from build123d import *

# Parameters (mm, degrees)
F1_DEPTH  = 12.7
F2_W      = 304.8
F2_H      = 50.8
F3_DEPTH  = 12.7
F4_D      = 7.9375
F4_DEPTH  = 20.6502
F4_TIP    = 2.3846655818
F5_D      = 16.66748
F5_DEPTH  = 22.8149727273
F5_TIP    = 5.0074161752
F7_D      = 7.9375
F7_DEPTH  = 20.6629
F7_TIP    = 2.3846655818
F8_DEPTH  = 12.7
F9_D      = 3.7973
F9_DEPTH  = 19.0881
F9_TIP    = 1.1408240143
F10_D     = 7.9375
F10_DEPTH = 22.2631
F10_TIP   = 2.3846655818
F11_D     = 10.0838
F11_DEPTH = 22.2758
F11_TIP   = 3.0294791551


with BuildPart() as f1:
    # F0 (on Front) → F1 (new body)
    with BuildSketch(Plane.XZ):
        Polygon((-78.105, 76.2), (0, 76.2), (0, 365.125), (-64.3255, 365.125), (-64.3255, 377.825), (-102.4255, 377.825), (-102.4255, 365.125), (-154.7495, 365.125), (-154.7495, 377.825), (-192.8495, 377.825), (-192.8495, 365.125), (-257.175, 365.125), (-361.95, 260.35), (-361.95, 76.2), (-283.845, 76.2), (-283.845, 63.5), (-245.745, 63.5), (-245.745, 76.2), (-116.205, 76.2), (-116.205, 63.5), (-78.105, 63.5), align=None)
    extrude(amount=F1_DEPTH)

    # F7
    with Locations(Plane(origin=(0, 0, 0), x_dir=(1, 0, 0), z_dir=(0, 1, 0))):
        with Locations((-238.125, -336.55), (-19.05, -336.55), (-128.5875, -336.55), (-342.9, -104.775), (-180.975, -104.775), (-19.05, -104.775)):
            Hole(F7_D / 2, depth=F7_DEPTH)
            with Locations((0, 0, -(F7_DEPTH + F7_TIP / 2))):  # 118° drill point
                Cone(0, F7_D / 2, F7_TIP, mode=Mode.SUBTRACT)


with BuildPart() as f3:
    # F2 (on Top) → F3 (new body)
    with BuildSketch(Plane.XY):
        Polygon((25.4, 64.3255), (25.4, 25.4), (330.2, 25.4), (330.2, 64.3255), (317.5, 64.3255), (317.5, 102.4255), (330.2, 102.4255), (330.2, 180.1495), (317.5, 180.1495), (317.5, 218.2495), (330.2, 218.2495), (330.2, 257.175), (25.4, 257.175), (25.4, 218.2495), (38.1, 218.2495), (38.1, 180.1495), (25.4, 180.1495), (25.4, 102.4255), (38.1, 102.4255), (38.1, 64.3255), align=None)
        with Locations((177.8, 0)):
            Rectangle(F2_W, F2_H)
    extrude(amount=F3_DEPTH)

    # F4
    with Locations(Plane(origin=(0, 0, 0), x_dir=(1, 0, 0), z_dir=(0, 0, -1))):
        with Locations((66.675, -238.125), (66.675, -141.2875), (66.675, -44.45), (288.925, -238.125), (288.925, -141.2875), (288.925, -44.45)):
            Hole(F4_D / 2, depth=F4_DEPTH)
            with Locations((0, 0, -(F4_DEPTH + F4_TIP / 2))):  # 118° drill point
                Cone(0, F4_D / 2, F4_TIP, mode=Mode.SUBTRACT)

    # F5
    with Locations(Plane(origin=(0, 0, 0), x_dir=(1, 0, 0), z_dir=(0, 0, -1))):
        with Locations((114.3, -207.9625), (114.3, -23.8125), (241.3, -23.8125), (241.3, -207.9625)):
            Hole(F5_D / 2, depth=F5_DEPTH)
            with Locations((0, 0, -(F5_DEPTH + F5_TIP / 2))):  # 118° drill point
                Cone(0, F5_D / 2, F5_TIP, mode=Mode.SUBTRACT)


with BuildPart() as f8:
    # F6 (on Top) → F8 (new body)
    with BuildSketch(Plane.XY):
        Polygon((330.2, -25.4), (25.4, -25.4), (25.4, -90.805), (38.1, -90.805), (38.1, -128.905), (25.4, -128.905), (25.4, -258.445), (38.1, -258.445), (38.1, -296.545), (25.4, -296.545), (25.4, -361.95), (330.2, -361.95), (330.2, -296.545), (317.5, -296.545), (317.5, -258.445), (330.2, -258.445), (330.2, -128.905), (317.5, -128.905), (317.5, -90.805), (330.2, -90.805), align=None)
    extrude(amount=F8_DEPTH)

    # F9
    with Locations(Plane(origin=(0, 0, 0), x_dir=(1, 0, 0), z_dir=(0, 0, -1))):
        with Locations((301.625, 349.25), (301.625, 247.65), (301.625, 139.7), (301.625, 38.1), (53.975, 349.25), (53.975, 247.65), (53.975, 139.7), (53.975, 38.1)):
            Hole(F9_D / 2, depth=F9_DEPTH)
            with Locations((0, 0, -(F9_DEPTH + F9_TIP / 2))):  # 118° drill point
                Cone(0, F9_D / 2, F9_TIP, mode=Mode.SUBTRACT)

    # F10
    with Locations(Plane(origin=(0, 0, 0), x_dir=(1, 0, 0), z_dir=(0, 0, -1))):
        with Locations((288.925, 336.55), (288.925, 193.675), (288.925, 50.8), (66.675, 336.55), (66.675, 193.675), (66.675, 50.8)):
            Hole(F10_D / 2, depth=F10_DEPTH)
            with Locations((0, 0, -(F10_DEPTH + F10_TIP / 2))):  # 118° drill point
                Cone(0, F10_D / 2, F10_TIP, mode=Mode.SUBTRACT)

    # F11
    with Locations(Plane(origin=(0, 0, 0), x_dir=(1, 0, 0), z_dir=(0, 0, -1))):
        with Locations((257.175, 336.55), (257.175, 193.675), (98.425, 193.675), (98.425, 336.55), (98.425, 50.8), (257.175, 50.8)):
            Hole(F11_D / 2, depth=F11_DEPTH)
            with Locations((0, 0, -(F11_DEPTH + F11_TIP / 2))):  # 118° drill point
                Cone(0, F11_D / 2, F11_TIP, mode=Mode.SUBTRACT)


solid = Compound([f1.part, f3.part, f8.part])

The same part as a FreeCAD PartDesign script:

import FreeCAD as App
import Part
import Sketcher
from FreeCAD import Vector
Q = App.Units.Quantity


def add_polygon(sketch, points):
    """Adds a closed chain of lines whose ends are joined by coincident constraints."""
    first, n = sketch.GeometryCount, len(points)
    for a, b in zip(points, points[1:] + points[:1]):
        sketch.addGeometry(Part.LineSegment(App.Vector(*a, 0), App.Vector(*b, 0)), False)
    for i in range(n):
        sketch.addConstraint(Sketcher.Constraint("Coincident", first + i, 2, first + (i + 1) % n, 1))

doc = App.newDocument("Part")
params = doc.addObject("Spreadsheet::Sheet", "Params")
for row, (alias, value) in enumerate([
    ("sketch1_width", "1.5 in"),
    ("sketch1_width2", "5.1 in"),
    ("sketch1_height", "0.5 in"),
    ("sketch1_width3", "2.06 in"),
    ("sketch1_height2", "7.25 in"),
    ("pad1_length", "0.5 in"),
    ("sketch2_diameter", "0.3125 in"),
    ("hole_diameter", "0.3125 in"),
    ("hole_depth", "0.8135 in"),
    ("sketch3_width", "12 in"),
    ("sketch3_width2", "0.5 in"),
    ("sketch3_height", "1.5 in"),
    ("sketch3_height2", "3.06 in"),
    ("pad2_length", "0.5 in"),
    ("sketch4_diameter", "0.3125 in"),
    ("hole2_diameter", "0.3125 in"),
    ("hole2_depth", "0.813 in"),
    ("hole3_diameter", "0.6562 in"),
    ("hole3_depth", "22.814973 mm"),
    ("sketch6_width", "12 in"),
    ("sketch6_width2", "0.5 in"),
    ("sketch6_height", "1.5 in"),
    ("sketch6_height2", "5.1 in"),
    ("sketch6_height3", "2.575 in"),
    ("pad3_length", "0.5 in"),
    ("hole4_diameter", "0.1495 in"),
    ("hole4_depth", "0.7515 in"),
    ("sketch8_diameter", "0.3125 in"),
    ("hole5_diameter", "0.3125 in"),
    ("hole5_depth", "0.8765 in"),
    ("sketch9_diameter", "0.397 in"),
    ("hole6_diameter", "0.397 in"),
    ("hole6_depth", "0.877 in"),
], start=1):
    params.set(f"A{row}", alias)
    params.set(f"B{row}", "=" + value)
    params.setAlias(f"B{row}", alias)

body = doc.addObject("PartDesign::Body", "Body")

sketch1 = body.newObject("Sketcher::SketchObject", "Sketch")
sketch1.AttachmentSupport = (doc.getObject("XZ_Plane"), [""])
sketch1.MapMode = "FlatFace"
add_polygon(sketch1, [(-78, 76), (0, 76), (0, 365), (-64, 365), (-64, 378), (-102, 378), (-102, 365), (-155, 365), (-155, 378), (-193, 378), (-193, 365), (-257, 365), (-362, 260), (-362, 76), (-284, 76), (-284, 64), (-246, 64), (-246, 76), (-116, 76), (-116, 64), (-78, 64)])
sketch1.addConstraint(Sketcher.Constraint("Horizontal", 0))
sketch1.addConstraint(Sketcher.Constraint("Vertical", 1))
sketch1.addConstraint(Sketcher.Constraint("Horizontal", 2))
sketch1.addConstraint(Sketcher.Constraint("Vertical", 3))
sketch1.addConstraint(Sketcher.Constraint("Horizontal", 4))
sketch1.addConstraint(Sketcher.Constraint("Vertical", 5))
sketch1.addConstraint(Sketcher.Constraint("Horizontal", 6))
sketch1.addConstraint(Sketcher.Constraint("Vertical", 7))
sketch1.addConstraint(Sketcher.Constraint("Horizontal", 8))
sketch1.addConstraint(Sketcher.Constraint("Vertical", 9))
sketch1.addConstraint(Sketcher.Constraint("Horizontal", 10))
sketch1.addConstraint(Sketcher.Constraint("Vertical", 12))
sketch1.addConstraint(Sketcher.Constraint("Horizontal", 13))
sketch1.addConstraint(Sketcher.Constraint("Vertical", 14))
sketch1.addConstraint(Sketcher.Constraint("Horizontal", 15))
sketch1.addConstraint(Sketcher.Constraint("Vertical", 16))
sketch1.addConstraint(Sketcher.Constraint("Horizontal", 17))
sketch1.addConstraint(Sketcher.Constraint("Vertical", 18))
sketch1.addConstraint(Sketcher.Constraint("Horizontal", 19))
sketch1.addConstraint(Sketcher.Constraint("Vertical", 20))
sketch1.addConstraint(Sketcher.Constraint("PointOnObject", 0, 2, -2))
sketch1.addConstraint(Sketcher.Constraint("Horizontal", 2, 2, 5, 2))
sketch1.addConstraint(Sketcher.Constraint("Horizontal", 4, 2, 7, 2))
sketch1.addConstraint(Sketcher.Constraint("Horizontal", 6, 2, 9, 2))
sketch1.addConstraint(Sketcher.Constraint("Horizontal", 0, 2, 12, 2))
sketch1.addConstraint(Sketcher.Constraint("Horizontal", 13, 2, 16, 2))
sketch1.addConstraint(Sketcher.Constraint("Horizontal", 15, 2, 18, 2))
sketch1.addConstraint(Sketcher.Constraint("Equal", 4, 8))
sketch1.addConstraint(Sketcher.Constraint("Equal", 2, 10))
sketch1.addConstraint(Sketcher.Constraint("Equal", 0, 13))
sketch1.addConstraint(Sketcher.Constraint("Equal", 8, 15))
sketch1.addConstraint(Sketcher.Constraint("Equal", 15, 19))
sketch1.addConstraint(Sketcher.Constraint("Equal", 9, 14))
sketch1.addConstraint(Sketcher.Constraint("DistanceX", 4, 2, 4, 1, Q("1.5 in")))
sketch1.addConstraint(Sketcher.Constraint("DistanceX", 17, 1, 17, 2, Q("5.1 in")))
sketch1.addConstraint(Sketcher.Constraint("DistanceY", 3, 1, 3, 2, Q("0.5 in")))
sketch1.addConstraint(Sketcher.Constraint("DistanceY", -1, 1, 0, 2, Q("3 in")))
sketch1.addConstraint(Sketcher.Constraint("Angle", 11, Q("-135 deg")))
sketch1.addConstraint(Sketcher.Constraint("DistanceX", 6, 2, 6, 1, Q("2.06 in")))
sketch1.addConstraint(Sketcher.Constraint("DistanceY", 12, 2, 12, 1, Q("7.25 in")))
sketch1.addConstraint(Sketcher.Constraint("DistanceX", 0, 1, 0, 2, Q("3.075 in")))
sketch1.addConstraint(Sketcher.Constraint("DistanceY", 1, 1, 1, 2, Q("11.375 in")))
sketch1.setExpression("Constraints[54]", "Params.sketch1_width")
sketch1.setExpression("Constraints[55]", "Params.sketch1_width2")
sketch1.setExpression("Constraints[56]", "Params.sketch1_height")
sketch1.setExpression("Constraints[59]", "Params.sketch1_width3")
sketch1.setExpression("Constraints[60]", "Params.sketch1_height2")
pad1 = body.newObject("PartDesign::Pad", "Pad")
pad1.Profile = sketch1
pad1.setExpression("Length", "Params.pad1_length")

sketch2 = body.newObject("Sketcher::SketchObject", "Sketch001")
sketch2.AttachmentSupport = (doc.getObject("XZ_Plane"), [""])
sketch2.MapMode = "FlatFace"
sketch2.addGeometry(Part.Circle(Vector(-238.1, 336.6, 0), Vector(0, 0, 1), 4), False)
sketch2.addGeometry(Part.Circle(Vector(-19.1, 336.6, 0), Vector(0, 0, 1), 4), False)
sketch2.addGeometry(Part.Circle(Vector(-128.6, 336.6, 0), Vector(0, 0, 1), 4), False)
sketch2.addGeometry(Part.Circle(Vector(-342.9, 104.8, 0), Vector(0, 0, 1), 4), False)
sketch2.addGeometry(Part.Circle(Vector(-181, 104.8, 0), Vector(0, 0, 1), 4), False)
sketch2.addGeometry(Part.Circle(Vector(-19.1, 104.8, 0), Vector(0, 0, 1), 4), False)
sketch2.addConstraint(Sketcher.Constraint("Equal", 0, 1))
sketch2.addConstraint(Sketcher.Constraint("Equal", 1, 2))
sketch2.addConstraint(Sketcher.Constraint("Equal", 2, 3))
sketch2.addConstraint(Sketcher.Constraint("Equal", 3, 4))
sketch2.addConstraint(Sketcher.Constraint("Equal", 4, 5))
sketch2.addConstraint(Sketcher.Constraint("Horizontal", 0, 3, 1, 3))
sketch2.addConstraint(Sketcher.Constraint("Horizontal", 1, 3, 2, 3))
sketch2.addConstraint(Sketcher.Constraint("Horizontal", 3, 3, 4, 3))
sketch2.addConstraint(Sketcher.Constraint("Horizontal", 4, 3, 5, 3))
sketch2.addConstraint(Sketcher.Constraint("Vertical", 1, 3, 5, 3))
sketch2.addConstraint(Sketcher.Constraint("Diameter", 0, Q("0.3125 in")))
sketch2.addConstraint(Sketcher.Constraint("DistanceX", 3, 3, -1, 1, Q("13.5 in")))
sketch2.addConstraint(Sketcher.Constraint("DistanceY", -1, 1, 0, 3, Q("13.25 in")))
sketch2.addConstraint(Sketcher.Constraint("DistanceX", 1, 3, -1, 1, Q("0.75 in")))
sketch2.addConstraint(Sketcher.Constraint("DistanceX", 0, 3, 4, 3, Q("2.25 in")))
sketch2.addConstraint(Sketcher.Constraint("DistanceX", 0, 3, -1, 1, Q("9.375 in")))
sketch2.addConstraint(Sketcher.Constraint("DistanceX", 2, 3, -1, 1, Q("5.0625 in")))
sketch2.addConstraint(Sketcher.Constraint("DistanceY", -1, 1, 3, 3, Q("4.125 in")))
sketch2.setExpression("Constraints[10]", "Params.sketch2_diameter")
doc.recompute()
hole = body.newObject("PartDesign::Hole", "Hole")
hole.Profile = sketch2
hole.ThreadType = "None"
hole.setExpression("Diameter", "Params.hole_diameter")
hole.DepthType = "Dimension"
hole.setExpression("Depth", "Params.hole_depth")
hole.DrillPoint = "Angled"
hole.DrillPointAngle = 118
hole.Reversed = True
body2 = doc.addObject("PartDesign::Body", "Body001")

sketch3 = body2.newObject("Sketcher::SketchObject", "Sketch002")
sketch3.AttachmentSupport = (doc.getObject("XY_Plane001"), [""])
sketch3.MapMode = "FlatFace"
add_polygon(sketch3, [(25, 64), (25, -25), (330, -25), (330, 64), (318, 64), (318, 102), (330, 102), (330, 180), (318, 180), (318, 218), (330, 218), (330, 257), (25, 257), (25, 218), (38, 218), (38, 180), (25, 180), (25, 102), (38, 102), (38, 64)])
sketch3.addConstraint(Sketcher.Constraint("Vertical", 0))
sketch3.addConstraint(Sketcher.Constraint("Horizontal", 1))
sketch3.addConstraint(Sketcher.Constraint("Vertical", 2))
sketch3.addConstraint(Sketcher.Constraint("Horizontal", 3))
sketch3.addConstraint(Sketcher.Constraint("Vertical", 4))
sketch3.addConstraint(Sketcher.Constraint("Horizontal", 5))
sketch3.addConstraint(Sketcher.Constraint("Vertical", 6))
sketch3.addConstraint(Sketcher.Constraint("Horizontal", 7))
sketch3.addConstraint(Sketcher.Constraint("Vertical", 8))
sketch3.addConstraint(Sketcher.Constraint("Horizontal", 9))
sketch3.addConstraint(Sketcher.Constraint("Vertical", 10))
sketch3.addConstraint(Sketcher.Constraint("Horizontal", 11))
sketch3.addConstraint(Sketcher.Constraint("Vertical", 12))
sketch3.addConstraint(Sketcher.Constraint("Horizontal", 13))
sketch3.addConstraint(Sketcher.Constraint("Vertical", 14))
sketch3.addConstraint(Sketcher.Constraint("Horizontal", 15))
sketch3.addConstraint(Sketcher.Constraint("Vertical", 16))
sketch3.addConstraint(Sketcher.Constraint("Horizontal", 17))
sketch3.addConstraint(Sketcher.Constraint("Vertical", 18))
sketch3.addConstraint(Sketcher.Constraint("Horizontal", 19))
sketch3.addConstraint(Sketcher.Constraint("Horizontal", 9, 2, 12, 2))
sketch3.addConstraint(Sketcher.Constraint("Horizontal", 7, 2, 14, 2))
sketch3.addConstraint(Sketcher.Constraint("Horizontal", 5, 2, 16, 2))
sketch3.addConstraint(Sketcher.Constraint("Horizontal", 3, 2, 18, 2))
sketch3.addConstraint(Sketcher.Constraint("Vertical", 2, 2, 5, 2))
sketch3.addConstraint(Sketcher.Constraint("Vertical", 4, 2, 7, 2))
sketch3.addConstraint(Sketcher.Constraint("Vertical", 6, 2, 9, 2))
sketch3.addConstraint(Sketcher.Constraint("Vertical", 0, 2, 11, 2))
sketch3.addConstraint(Sketcher.Constraint("Vertical", 12, 2, 15, 2))
sketch3.addConstraint(Sketcher.Constraint("Vertical", 14, 2, 17, 2))
sketch3.addConstraint(Sketcher.Constraint("Equal", 9, 13))
sketch3.addConstraint(Sketcher.Constraint("Equal", 4, 8))
sketch3.addConstraint(Sketcher.Constraint("DistanceX", 1, 1, 1, 2, Q("12 in")))
sketch3.addConstraint(Sketcher.Constraint("DistanceX", 3, 2, 3, 1, Q("0.5 in")))
sketch3.addConstraint(Sketcher.Constraint("DistanceY", 4, 1, 4, 2, Q("1.5 in")))
sketch3.addConstraint(Sketcher.Constraint("DistanceX", -1, 1, 0, 2, Q("1 in")))
sketch3.addConstraint(Sketcher.Constraint("DistanceY", 0, 2, -1, 1, Q("1 in")))
sketch3.addConstraint(Sketcher.Constraint("DistanceY", 6, 1, 6, 2, Q("3.06 in")))
sketch3.addConstraint(Sketcher.Constraint("DistanceY", 0, 2, 0, 1, Q("3.5325 in")))
sketch3.addConstraint(Sketcher.Constraint("DistanceY", 10, 1, 10, 2, Q("1.5325 in")))
sketch3.setExpression("Constraints[52]", "Params.sketch3_width")
sketch3.setExpression("Constraints[53]", "Params.sketch3_width2")
sketch3.setExpression("Constraints[54]", "Params.sketch3_height")
sketch3.setExpression("Constraints[57]", "Params.sketch3_height2")
pad2 = body2.newObject("PartDesign::Pad", "Pad001")
pad2.Profile = sketch3
pad2.setExpression("Length", "Params.pad2_length")

sketch4 = body2.newObject("Sketcher::SketchObject", "Sketch003")
sketch4.AttachmentSupport = (doc.getObject("XY_Plane001"), [""])
sketch4.MapMode = "FlatFace"
sketch4.addGeometry(Part.Circle(Vector(66.7, 238.1, 0), Vector(0, 0, 1), 4), False)
sketch4.addGeometry(Part.Circle(Vector(66.7, 141.3, 0), Vector(0, 0, 1), 4), False)
sketch4.addGeometry(Part.Circle(Vector(66.7, 44.5, 0), Vector(0, 0, 1), 4), False)
sketch4.addGeometry(Part.Circle(Vector(288.9, 238.1, 0), Vector(0, 0, 1), 4), False)
sketch4.addGeometry(Part.Circle(Vector(288.9, 141.3, 0), Vector(0, 0, 1), 4), False)
sketch4.addGeometry(Part.Circle(Vector(288.9, 44.5, 0), Vector(0, 0, 1), 4), False)
sketch4.addConstraint(Sketcher.Constraint("Equal", 0, 1))
sketch4.addConstraint(Sketcher.Constraint("Equal", 1, 2))
sketch4.addConstraint(Sketcher.Constraint("Equal", 2, 3))
sketch4.addConstraint(Sketcher.Constraint("Equal", 3, 4))
sketch4.addConstraint(Sketcher.Constraint("Equal", 4, 5))
sketch4.addConstraint(Sketcher.Constraint("Horizontal", 0, 3, 3, 3))
sketch4.addConstraint(Sketcher.Constraint("Horizontal", 1, 3, 4, 3))
sketch4.addConstraint(Sketcher.Constraint("Horizontal", 2, 3, 5, 3))
sketch4.addConstraint(Sketcher.Constraint("Vertical", 0, 3, 1, 3))
sketch4.addConstraint(Sketcher.Constraint("Vertical", 1, 3, 2, 3))
sketch4.addConstraint(Sketcher.Constraint("Vertical", 3, 3, 4, 3))
sketch4.addConstraint(Sketcher.Constraint("Vertical", 4, 3, 5, 3))
sketch4.addConstraint(Sketcher.Constraint("Diameter", 0, Q("0.3125 in")))
sketch4.addConstraint(Sketcher.Constraint("DistanceY", -1, 1, 2, 3, Q("1.75 in")))
sketch4.addConstraint(Sketcher.Constraint("DistanceX", 0, 3, 3, 3, Q("8.75 in")))
sketch4.addConstraint(Sketcher.Constraint("DistanceX", -1, 1, 0, 3, Q("2.625 in")))
sketch4.addConstraint(Sketcher.Constraint("DistanceY", -1, 1, 0, 3, Q("9.375 in")))
sketch4.addConstraint(Sketcher.Constraint("DistanceY", -1, 1, 1, 3, Q("5.5625 in")))
sketch4.setExpression("Constraints[12]", "Params.sketch4_diameter")
doc.recompute()
hole2 = body2.newObject("PartDesign::Hole", "Hole001")
hole2.Profile = sketch4
hole2.ThreadType = "None"
hole2.setExpression("Diameter", "Params.hole2_diameter")
hole2.DepthType = "Dimension"
hole2.setExpression("Depth", "Params.hole2_depth")
hole2.DrillPoint = "Angled"
hole2.DrillPointAngle = 118
hole2.Reversed = True

sketch5 = body2.newObject("Sketcher::SketchObject", "Sketch004")
sketch5.AttachmentSupport = (doc.getObject("XY_Plane001"), [""])
sketch5.MapMode = "FlatFace"
sketch5.addGeometry(Part.Circle(Vector(114, 208, 0), Vector(0, 0, 1), 8), False)
sketch5.addGeometry(Part.Circle(Vector(114, 24, 0), Vector(0, 0, 1), 8), False)
sketch5.addGeometry(Part.Circle(Vector(241, 24, 0), Vector(0, 0, 1), 8), False)
sketch5.addGeometry(Part.Circle(Vector(241, 208, 0), Vector(0, 0, 1), 8), False)
sketch5.addConstraint(Sketcher.Constraint("Equal", 0, 1))
sketch5.addConstraint(Sketcher.Constraint("Equal", 1, 2))
sketch5.addConstraint(Sketcher.Constraint("Equal", 2, 3))
sketch5.addConstraint(Sketcher.Constraint("Horizontal", 1, 3, 2, 3))
sketch5.addConstraint(Sketcher.Constraint("Horizontal", 0, 3, 3, 3))
sketch5.addConstraint(Sketcher.Constraint("Vertical", 0, 3, 1, 3))
sketch5.addConstraint(Sketcher.Constraint("Vertical", 2, 3, 3, 3))
sketch5.addConstraint(Sketcher.Constraint("DistanceX", 1, 3, 2, 3, Q("5 in")))
sketch5.addConstraint(Sketcher.Constraint("Diameter", 0, Q("0.6562 in")))
sketch5.addConstraint(Sketcher.Constraint("DistanceX", -1, 1, 0, 3, Q("4.5 in")))
sketch5.addConstraint(Sketcher.Constraint("DistanceY", 1, 3, 0, 3, Q("7.25 in")))
sketch5.addConstraint(Sketcher.Constraint("DistanceY", -1, 1, 0, 3, Q("8.1875 in")))
doc.recompute()
hole3 = body2.newObject("PartDesign::Hole", "Hole002")
hole3.Profile = sketch5
hole3.ThreadType = "None"
hole3.setExpression("Diameter", "Params.hole3_diameter")
hole3.DepthType = "Dimension"
hole3.setExpression("Depth", "Params.hole3_depth")
hole3.DrillPoint = "Angled"
hole3.DrillPointAngle = 118
hole3.Reversed = True
body3 = doc.addObject("PartDesign::Body", "Body002")

sketch6 = body3.newObject("Sketcher::SketchObject", "Sketch005")
sketch6.AttachmentSupport = (doc.getObject("XY_Plane002"), [""])
sketch6.MapMode = "FlatFace"
add_polygon(sketch6, [(330, -25), (25, -25), (25, -91), (38, -91), (38, -129), (25, -129), (25, -258), (38, -258), (38, -297), (25, -297), (25, -362), (330, -362), (330, -297), (318, -297), (318, -258), (330, -258), (330, -129), (318, -129), (318, -91), (330, -91)])
sketch6.addConstraint(Sketcher.Constraint("Horizontal", 0))
sketch6.addConstraint(Sketcher.Constraint("Vertical", 1))
sketch6.addConstraint(Sketcher.Constraint("Horizontal", 2))
sketch6.addConstraint(Sketcher.Constraint("Vertical", 3))
sketch6.addConstraint(Sketcher.Constraint("Horizontal", 4))
sketch6.addConstraint(Sketcher.Constraint("Vertical", 5))
sketch6.addConstraint(Sketcher.Constraint("Horizontal", 6))
sketch6.addConstraint(Sketcher.Constraint("Vertical", 7))
sketch6.addConstraint(Sketcher.Constraint("Horizontal", 8))
sketch6.addConstraint(Sketcher.Constraint("Vertical", 9))
sketch6.addConstraint(Sketcher.Constraint("Horizontal", 10))
sketch6.addConstraint(Sketcher.Constraint("Vertical", 11))
sketch6.addConstraint(Sketcher.Constraint("Horizontal", 12))
sketch6.addConstraint(Sketcher.Constraint("Vertical", 13))
sketch6.addConstraint(Sketcher.Constraint("Horizontal", 14))
sketch6.addConstraint(Sketcher.Constraint("Vertical", 15))
sketch6.addConstraint(Sketcher.Constraint("Horizontal", 16))
sketch6.addConstraint(Sketcher.Constraint("Vertical", 17))
sketch6.addConstraint(Sketcher.Constraint("Horizontal", 18))
sketch6.addConstraint(Sketcher.Constraint("Vertical", 19))
sketch6.addConstraint(Sketcher.Constraint("Horizontal", 8, 2, 11, 2))
sketch6.addConstraint(Sketcher.Constraint("Horizontal", 6, 2, 13, 2))
sketch6.addConstraint(Sketcher.Constraint("Horizontal", 4, 2, 15, 2))
sketch6.addConstraint(Sketcher.Constraint("Horizontal", 2, 2, 17, 2))
sketch6.addConstraint(Sketcher.Constraint("Vertical", 1, 2, 4, 2))
sketch6.addConstraint(Sketcher.Constraint("Vertical", 3, 2, 6, 2))
sketch6.addConstraint(Sketcher.Constraint("Vertical", 5, 2, 8, 2))
sketch6.addConstraint(Sketcher.Constraint("Vertical", 11, 2, 14, 2))
sketch6.addConstraint(Sketcher.Constraint("Vertical", 13, 2, 16, 2))
sketch6.addConstraint(Sketcher.Constraint("Vertical", 15, 2, 18, 2))
sketch6.addConstraint(Sketcher.Constraint("Equal", 8, 12))
sketch6.addConstraint(Sketcher.Constraint("Equal", 3, 7))
sketch6.addConstraint(Sketcher.Constraint("Equal", 1, 9))
sketch6.addConstraint(Sketcher.Constraint("DistanceX", 0, 2, 0, 1, Q("12 in")))
sketch6.addConstraint(Sketcher.Constraint("DistanceX", 2, 1, 2, 2, Q("0.5 in")))
sketch6.addConstraint(Sketcher.Constraint("DistanceY", 3, 2, 3, 1, Q("1.5 in")))
sketch6.addConstraint(Sketcher.Constraint("DistanceY", 5, 2, 5, 1, Q("5.1 in")))
sketch6.addConstraint(Sketcher.Constraint("DistanceX", -1, 1, 0, 2, Q("1 in")))
sketch6.addConstraint(Sketcher.Constraint("DistanceY", 0, 2, -1, 1, Q("1 in")))
sketch6.addConstraint(Sketcher.Constraint("DistanceY", 1, 2, 1, 1, Q("2.575 in")))
sketch6.setExpression("Constraints[53]", "Params.sketch6_width")
sketch6.setExpression("Constraints[54]", "Params.sketch6_width2")
sketch6.setExpression("Constraints[55]", "Params.sketch6_height")
sketch6.setExpression("Constraints[56]", "Params.sketch6_height2")
sketch6.setExpression("Constraints[59]", "Params.sketch6_height3")
pad3 = body3.newObject("PartDesign::Pad", "Pad002")
pad3.Profile = sketch6
pad3.setExpression("Length", "Params.pad3_length")

sketch7 = body3.newObject("Sketcher::SketchObject", "Sketch006")
sketch7.AttachmentSupport = (doc.getObject("XY_Plane002"), [""])
sketch7.MapMode = "FlatFace"
sketch7.addGeometry(Part.Circle(Vector(301.6, -349.2, 0), Vector(0, 0, 1), 1.9), False)
sketch7.addGeometry(Part.Circle(Vector(301.6, -247.7, 0), Vector(0, 0, 1), 1.9), False)
sketch7.addGeometry(Part.Circle(Vector(301.6, -139.7, 0), Vector(0, 0, 1), 1.9), False)
sketch7.addGeometry(Part.Circle(Vector(301.6, -38.1, 0), Vector(0, 0, 1), 1.9), False)
sketch7.addGeometry(Part.Circle(Vector(54, -349.2, 0), Vector(0, 0, 1), 1.9), False)
sketch7.addGeometry(Part.Circle(Vector(54, -247.7, 0), Vector(0, 0, 1), 1.9), False)
sketch7.addGeometry(Part.Circle(Vector(54, -139.7, 0), Vector(0, 0, 1), 1.9), False)
sketch7.addGeometry(Part.Circle(Vector(54, -38.1, 0), Vector(0, 0, 1), 1.9), False)
sketch7.addConstraint(Sketcher.Constraint("Equal", 0, 1))
sketch7.addConstraint(Sketcher.Constraint("Equal", 1, 2))
sketch7.addConstraint(Sketcher.Constraint("Equal", 2, 3))
sketch7.addConstraint(Sketcher.Constraint("Equal", 3, 4))
sketch7.addConstraint(Sketcher.Constraint("Equal", 4, 5))
sketch7.addConstraint(Sketcher.Constraint("Equal", 5, 6))
sketch7.addConstraint(Sketcher.Constraint("Equal", 6, 7))
sketch7.addConstraint(Sketcher.Constraint("Horizontal", 0, 3, 4, 3))
sketch7.addConstraint(Sketcher.Constraint("Horizontal", 1, 3, 5, 3))
sketch7.addConstraint(Sketcher.Constraint("Horizontal", 2, 3, 6, 3))
sketch7.addConstraint(Sketcher.Constraint("Horizontal", 3, 3, 7, 3))
sketch7.addConstraint(Sketcher.Constraint("Vertical", 0, 3, 1, 3))
sketch7.addConstraint(Sketcher.Constraint("Vertical", 1, 3, 2, 3))
sketch7.addConstraint(Sketcher.Constraint("Vertical", 2, 3, 3, 3))
sketch7.addConstraint(Sketcher.Constraint("Vertical", 4, 3, 5, 3))
sketch7.addConstraint(Sketcher.Constraint("Vertical", 5, 3, 6, 3))
sketch7.addConstraint(Sketcher.Constraint("Vertical", 6, 3, 7, 3))
sketch7.addConstraint(Sketcher.Constraint("DistanceY", 0, 3, 1, 3, Q("4 in")))
sketch7.addConstraint(Sketcher.Constraint("DistanceY", 2, 3, 3, 3, Q("4 in")))
sketch7.addConstraint(Sketcher.Constraint("Diameter", 0, Q("0.1495 in")))
sketch7.addConstraint(Sketcher.Constraint("DistanceY", 2, 3, -1, 1, Q("5.5 in")))
sketch7.addConstraint(Sketcher.Constraint("DistanceY", 0, 3, -1, 1, Q("13.75 in")))
sketch7.addConstraint(Sketcher.Constraint("DistanceX", 4, 3, 0, 3, Q("9.75 in")))
sketch7.addConstraint(Sketcher.Constraint("DistanceX", -1, 1, 0, 3, Q("11.875 in")))
doc.recompute()
hole4 = body3.newObject("PartDesign::Hole", "Hole003")
hole4.Profile = sketch7
hole4.ThreadType = "None"
hole4.setExpression("Diameter", "Params.hole4_diameter")
hole4.DepthType = "Dimension"
hole4.setExpression("Depth", "Params.hole4_depth")
hole4.DrillPoint = "Angled"
hole4.DrillPointAngle = 118
hole4.Reversed = True

sketch8 = body3.newObject("Sketcher::SketchObject", "Sketch007")
sketch8.AttachmentSupport = (doc.getObject("XY_Plane002"), [""])
sketch8.MapMode = "FlatFace"
sketch8.addGeometry(Part.Circle(Vector(288.9, -336.6, 0), Vector(0, 0, 1), 4), False)
sketch8.addGeometry(Part.Circle(Vector(288.9, -193.7, 0), Vector(0, 0, 1), 4), False)
sketch8.addGeometry(Part.Circle(Vector(288.9, -50.8, 0), Vector(0, 0, 1), 4), False)
sketch8.addGeometry(Part.Circle(Vector(66.7, -336.6, 0), Vector(0, 0, 1), 4), False)
sketch8.addGeometry(Part.Circle(Vector(66.7, -193.7, 0), Vector(0, 0, 1), 4), False)
sketch8.addGeometry(Part.Circle(Vector(66.7, -50.8, 0), Vector(0, 0, 1), 4), False)
sketch8.addConstraint(Sketcher.Constraint("Equal", 0, 1))
sketch8.addConstraint(Sketcher.Constraint("Equal", 1, 2))
sketch8.addConstraint(Sketcher.Constraint("Equal", 2, 3))
sketch8.addConstraint(Sketcher.Constraint("Equal", 3, 4))
sketch8.addConstraint(Sketcher.Constraint("Equal", 4, 5))
sketch8.addConstraint(Sketcher.Constraint("Horizontal", 0, 3, 3, 3))
sketch8.addConstraint(Sketcher.Constraint("Horizontal", 1, 3, 4, 3))
sketch8.addConstraint(Sketcher.Constraint("Horizontal", 2, 3, 5, 3))
sketch8.addConstraint(Sketcher.Constraint("Vertical", 0, 3, 1, 3))
sketch8.addConstraint(Sketcher.Constraint("Vertical", 1, 3, 2, 3))
sketch8.addConstraint(Sketcher.Constraint("Vertical", 3, 3, 4, 3))
sketch8.addConstraint(Sketcher.Constraint("Vertical", 4, 3, 5, 3))
sketch8.addConstraint(Sketcher.Constraint("Diameter", 0, Q("0.3125 in")))
sketch8.addConstraint(Sketcher.Constraint("DistanceY", 2, 3, -1, 1, Q("2 in")))
sketch8.addConstraint(Sketcher.Constraint("DistanceY", 0, 3, -1, 1, Q("13.25 in")))
sketch8.addConstraint(Sketcher.Constraint("DistanceX", 3, 3, 0, 3, Q("8.75 in")))
sketch8.addConstraint(Sketcher.Constraint("DistanceX", -1, 1, 0, 3, Q("11.375 in")))
sketch8.addConstraint(Sketcher.Constraint("DistanceY", 1, 3, -1, 1, Q("7.625 in")))
sketch8.setExpression("Constraints[12]", "Params.sketch8_diameter")
doc.recompute()
hole5 = body3.newObject("PartDesign::Hole", "Hole004")
hole5.Profile = sketch8
hole5.ThreadType = "None"
hole5.setExpression("Diameter", "Params.hole5_diameter")
hole5.DepthType = "Dimension"
hole5.setExpression("Depth", "Params.hole5_depth")
hole5.DrillPoint = "Angled"
hole5.DrillPointAngle = 118
hole5.Reversed = True

sketch9 = body3.newObject("Sketcher::SketchObject", "Sketch008")
sketch9.AttachmentSupport = (doc.getObject("XY_Plane002"), [""])
sketch9.MapMode = "FlatFace"
sketch9.addGeometry(Part.Circle(Vector(257, -337, 0), Vector(0, 0, 1), 5), False)
sketch9.addGeometry(Part.Circle(Vector(257, -194, 0), Vector(0, 0, 1), 5), False)
sketch9.addGeometry(Part.Circle(Vector(98, -194, 0), Vector(0, 0, 1), 5), False)
sketch9.addGeometry(Part.Circle(Vector(98, -337, 0), Vector(0, 0, 1), 5), False)
sketch9.addGeometry(Part.Circle(Vector(98, -51, 0), Vector(0, 0, 1), 5), False)
sketch9.addGeometry(Part.Circle(Vector(257, -51, 0), Vector(0, 0, 1), 5), False)
sketch9.addConstraint(Sketcher.Constraint("Equal", 0, 1))
sketch9.addConstraint(Sketcher.Constraint("Equal", 1, 2))
sketch9.addConstraint(Sketcher.Constraint("Equal", 2, 3))
sketch9.addConstraint(Sketcher.Constraint("Equal", 3, 4))
sketch9.addConstraint(Sketcher.Constraint("Equal", 4, 5))
sketch9.addConstraint(Sketcher.Constraint("Horizontal", 1, 3, 2, 3))
sketch9.addConstraint(Sketcher.Constraint("Horizontal", 0, 3, 3, 3))
sketch9.addConstraint(Sketcher.Constraint("Horizontal", 4, 3, 5, 3))
sketch9.addConstraint(Sketcher.Constraint("Vertical", 0, 3, 1, 3))
sketch9.addConstraint(Sketcher.Constraint("Vertical", 2, 3, 3, 3))
sketch9.addConstraint(Sketcher.Constraint("Vertical", 3, 3, 4, 3))
sketch9.addConstraint(Sketcher.Constraint("Vertical", 1, 3, 5, 3))
sketch9.addConstraint(Sketcher.Constraint("Diameter", 0, Q("0.397 in")))
sketch9.addConstraint(Sketcher.Constraint("DistanceY", 4, 3, -1, 1, Q("2 in")))
sketch9.addConstraint(Sketcher.Constraint("DistanceY", 0, 3, -1, 1, Q("13.25 in")))
sketch9.addConstraint(Sketcher.Constraint("DistanceX", 2, 3, 1, 3, Q("6.25 in")))
sketch9.addConstraint(Sketcher.Constraint("DistanceX", -1, 1, 0, 3, Q("10.125 in")))
sketch9.addConstraint(Sketcher.Constraint("DistanceY", 1, 3, -1, 1, Q("7.625 in")))
sketch9.setExpression("Constraints[12]", "Params.sketch9_diameter")
doc.recompute()
hole6 = body3.newObject("PartDesign::Hole", "Hole005")
hole6.Profile = sketch9
hole6.ThreadType = "None"
hole6.setExpression("Diameter", "Params.hole6_diameter")
hole6.DepthType = "Dimension"
hole6.setExpression("Depth", "Params.hole6_depth")
hole6.DrillPoint = "Angled"
hole6.DrillPointAngle = 118
hole6.Reversed = True

doc.recompute()
